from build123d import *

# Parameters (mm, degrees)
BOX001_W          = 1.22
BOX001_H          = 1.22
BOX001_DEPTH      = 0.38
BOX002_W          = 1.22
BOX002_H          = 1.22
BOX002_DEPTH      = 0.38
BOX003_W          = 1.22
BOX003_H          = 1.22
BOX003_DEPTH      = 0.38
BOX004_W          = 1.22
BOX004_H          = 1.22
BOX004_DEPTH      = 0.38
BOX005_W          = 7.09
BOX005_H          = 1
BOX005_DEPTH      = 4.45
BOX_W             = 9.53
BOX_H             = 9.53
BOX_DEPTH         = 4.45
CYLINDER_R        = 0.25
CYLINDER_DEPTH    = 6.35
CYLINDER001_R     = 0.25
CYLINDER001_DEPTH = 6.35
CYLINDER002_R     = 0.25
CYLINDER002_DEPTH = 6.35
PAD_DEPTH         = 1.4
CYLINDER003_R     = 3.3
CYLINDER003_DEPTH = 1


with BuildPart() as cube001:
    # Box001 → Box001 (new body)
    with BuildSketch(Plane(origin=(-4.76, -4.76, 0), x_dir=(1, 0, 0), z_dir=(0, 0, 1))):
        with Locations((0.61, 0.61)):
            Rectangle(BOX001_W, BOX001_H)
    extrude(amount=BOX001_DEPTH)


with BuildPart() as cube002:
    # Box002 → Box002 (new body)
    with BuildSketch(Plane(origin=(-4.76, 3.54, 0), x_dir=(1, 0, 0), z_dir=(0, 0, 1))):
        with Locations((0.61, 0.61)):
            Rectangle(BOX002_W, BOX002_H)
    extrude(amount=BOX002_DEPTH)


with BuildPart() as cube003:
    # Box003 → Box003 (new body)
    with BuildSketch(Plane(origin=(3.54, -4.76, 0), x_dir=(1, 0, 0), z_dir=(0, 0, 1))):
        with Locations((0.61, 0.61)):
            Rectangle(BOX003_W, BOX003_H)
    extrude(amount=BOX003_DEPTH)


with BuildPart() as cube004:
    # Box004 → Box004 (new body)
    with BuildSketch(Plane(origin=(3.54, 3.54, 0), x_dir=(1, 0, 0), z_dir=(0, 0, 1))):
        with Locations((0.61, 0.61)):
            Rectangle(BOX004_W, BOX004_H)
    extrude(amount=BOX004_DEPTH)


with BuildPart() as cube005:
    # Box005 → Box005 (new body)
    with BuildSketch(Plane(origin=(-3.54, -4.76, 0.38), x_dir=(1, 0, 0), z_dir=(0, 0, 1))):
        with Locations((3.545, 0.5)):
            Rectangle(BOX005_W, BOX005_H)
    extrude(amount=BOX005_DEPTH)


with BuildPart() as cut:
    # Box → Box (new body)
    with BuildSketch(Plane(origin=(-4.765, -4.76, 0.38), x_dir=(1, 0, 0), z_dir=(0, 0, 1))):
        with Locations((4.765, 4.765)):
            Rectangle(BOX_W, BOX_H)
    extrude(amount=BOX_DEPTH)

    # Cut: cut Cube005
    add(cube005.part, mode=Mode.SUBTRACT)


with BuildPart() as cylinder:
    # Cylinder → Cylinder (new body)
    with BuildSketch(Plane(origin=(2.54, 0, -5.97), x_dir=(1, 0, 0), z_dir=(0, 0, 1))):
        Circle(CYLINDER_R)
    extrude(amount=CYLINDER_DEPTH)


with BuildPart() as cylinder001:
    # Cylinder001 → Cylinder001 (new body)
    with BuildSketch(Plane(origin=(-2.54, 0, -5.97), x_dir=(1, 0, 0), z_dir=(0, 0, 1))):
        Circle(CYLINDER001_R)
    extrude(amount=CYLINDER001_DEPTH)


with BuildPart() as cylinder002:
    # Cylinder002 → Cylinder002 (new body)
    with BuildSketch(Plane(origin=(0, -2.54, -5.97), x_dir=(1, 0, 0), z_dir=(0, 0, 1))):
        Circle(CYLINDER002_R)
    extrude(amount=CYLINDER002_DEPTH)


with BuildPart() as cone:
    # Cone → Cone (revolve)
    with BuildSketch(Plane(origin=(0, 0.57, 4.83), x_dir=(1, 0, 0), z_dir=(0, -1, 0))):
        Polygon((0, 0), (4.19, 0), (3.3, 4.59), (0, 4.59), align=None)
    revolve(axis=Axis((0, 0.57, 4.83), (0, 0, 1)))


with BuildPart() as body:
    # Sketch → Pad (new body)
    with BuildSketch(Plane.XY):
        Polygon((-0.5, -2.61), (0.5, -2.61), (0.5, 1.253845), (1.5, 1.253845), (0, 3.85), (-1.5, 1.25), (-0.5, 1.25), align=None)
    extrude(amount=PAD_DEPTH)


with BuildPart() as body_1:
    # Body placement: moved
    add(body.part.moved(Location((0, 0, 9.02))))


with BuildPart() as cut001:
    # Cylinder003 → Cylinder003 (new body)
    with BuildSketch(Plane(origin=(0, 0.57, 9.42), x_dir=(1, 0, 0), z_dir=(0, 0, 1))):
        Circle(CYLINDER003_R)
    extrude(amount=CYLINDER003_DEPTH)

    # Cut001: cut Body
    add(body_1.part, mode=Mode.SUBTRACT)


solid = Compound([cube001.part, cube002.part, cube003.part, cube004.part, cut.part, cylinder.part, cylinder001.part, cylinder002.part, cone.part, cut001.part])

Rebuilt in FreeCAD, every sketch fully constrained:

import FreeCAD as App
import Part
import Sketcher

V = App.Vector


def add_polygon(sketch, points):
    """Adds a closed chain of lines whose ends are joined by coincident constraints."""
    first, n = sketch.GeometryCount, len(points)
    for a, b in zip(points, points[1:] + points[:1]):
        sketch.addGeometry(Part.LineSegment(App.Vector(*a, 0), App.Vector(*b, 0)), False)
    for i in range(n):
        sketch.addConstraint(Sketcher.Constraint("Coincident", first + i, 2, first + (i + 1) % n, 1))

doc = App.newDocument("Part")
body = doc.addObject("PartDesign::Body", "Body")

sketch1 = doc.addObject("Sketcher::SketchObject", "Sketch")
body.addObject(sketch1)
sketch1.AttachmentSupport = (doc.XY_Plane, [""])
sketch1.MapMode = "FlatFace"
add_polygon(sketch1, [(-4.8, -3.5), (-4.8, -4.8), (-3.5, -4.8), (-3.5, -3.5)])
sketch1.addConstraint([
    Sketcher.Constraint("Vertical", 0),
    Sketcher.Constraint("Horizontal", 1),
    Sketcher.Constraint("Vertical", 2),
    Sketcher.Constraint("Horizontal", 3),
    Sketcher.Constraint("Equal", 3, 0),
    Sketcher.Constraint("DistanceX", 1, 1, 1, 2, 1.22),
    Sketcher.Constraint("DistanceX", 0, 2, -1, 1, 4.76),
    Sketcher.Constraint("DistanceY", 0, 2, -1, 1, 4.76),
])
pad1 = doc.addObject("PartDesign::Pad", "Pad")
body.addObject(pad1)
pad1.Profile = sketch1
pad1.Length = 0.38
body2 = doc.addObject("PartDesign::Body", "Body001")

sketch2 = doc.addObject("Sketcher::SketchObject", "Sketch001")
body2.addObject(sketch2)
sketch2.AttachmentSupport = (doc.getObject("XY_Plane001"), [""])
sketch2.MapMode = "FlatFace"
add_polygon(sketch2, [(-4.8, 4.8), (-4.8, 3.5), (-3.5, 3.5), (-3.5, 4.8)])
sketch2.addConstraint([
    Sketcher.Constraint("Vertical", 0),
    Sketcher.Constraint("Horizontal", 1),
    Sketcher.Constraint("Vertical", 2),
    Sketcher.Constraint("Horizontal", 3),
    Sketcher.Constraint("Equal", 3, 0),
    Sketcher.Constraint("DistanceX", 1, 1, 1, 2, 1.22),
    Sketcher.Constraint("DistanceX", 0, 2, -1, 1, 4.76),
    Sketcher.Constraint("DistanceY", -1, 1, 0, 2, 3.54),
])
pad2 = doc.addObject("PartDesign::Pad", "Pad001")
body2.addObject(pad2)
pad2.Profile = sketch2
pad2.Length = 0.38
body3 = doc.addObject("PartDesign::Body", "Body002")

sketch3 = doc.addObject("Sketcher::SketchObject", "Sketch002")
body3.addObject(sketch3)
sketch3.AttachmentSupport = (doc.getObject("XY_Plane002"), [""])
sketch3.MapMode = "FlatFace"
add_polygon(sketch3, [(3.5, -3.5), (3.5, -4.8), (4.8, -4.8), (4.8, -3.5)])
sketch3.addConstraint([
    Sketcher.Constraint("Vertical", 0),
    Sketcher.Constraint("Horizontal", 1),
    Sketcher.Constraint("Vertical", 2),
    Sketcher.Constraint("Horizontal", 3),
    Sketcher.Constraint("Equal", 3, 0),
    Sketcher.Constraint("DistanceX", 1, 1, 1, 2, 1.22),
    Sketcher.Constraint("DistanceX", -1, 1, 0, 2, 3.54),
    Sketcher.Constraint("DistanceY", 0, 2, -1, 1, 4.76),
])
pad3 = doc.addObject("PartDesign::Pad", "Pad002")
body3.addObject(pad3)
pad3.Profile = sketch3
pad3.Length = 0.38
body4 = doc.addObject("PartDesign::Body", "Body003")

sketch4 = doc.addObject("Sketcher::SketchObject", "Sketch003")
body4.addObject(sketch4)
sketch4.AttachmentSupport = (doc.getObject("XY_Plane003"), [""])
sketch4.MapMode = "FlatFace"
add_polygon(sketch4, [(3.5, 4.8), (3.5, 3.5), (4.8, 3.5), (4.8, 4.8)])
sketch4.addConstraint([
    Sketcher.Constraint("Vertical", 0),
    Sketcher.Constraint("Horizontal", 1),
    Sketcher.Constraint("Vertical", 2),
    Sketcher.Constraint("Horizontal", 3),
    Sketcher.Constraint("Equal", 3, 0),
    Sketcher.Constraint("DistanceX", 1, 1, 1, 2, 1.22),
    Sketcher.Constraint("DistanceX", -1, 1, 0, 2, 3.54),
    Sketcher.Constraint("DistanceY", -1, 1, 0, 2, 3.54),
])
pad4 = doc.addObject("PartDesign::Pad", "Pad003")
body4.addObject(pad4)
pad4.Profile = sketch4
pad4.Length = 0.38
body5 = doc.addObject("PartDesign::Body", "Body004")

sketch5 = doc.addObject("Sketcher::SketchObject", "Sketch004")
body5.addObject(sketch5)
sketch5.AttachmentSupport = (doc.getObject("XY_Plane004"), [""])
sketch5.MapMode = "FlatFace"
sketch5.AttachmentOffset = App.Placement(V(0, 0, 0.38), App.Rotation())
add_polygon(sketch5, [(-3.5, -3.8), (-3.5, -4.8), (3.5, -4.8), (3.5, -3.8)])
sketch5.addConstraint([
    Sketcher.Constraint("Vertical", 0),
    Sketcher.Constraint("Horizontal", 1),
    Sketcher.Constraint("Vertical", 2),
    Sketcher.Constraint("Horizontal", 3),
    Sketcher.Constraint("DistanceY", 0, 2, 0, 1, 1.0),
    Sketcher.Constraint("DistanceX", 1, 1, 1, 2, 7.09),
    Sketcher.Constraint("DistanceX", 0, 2, -1, 1, 3.54),
    Sketcher.Constraint("DistanceY", 0, 2, -1, 1, 4.76),
])
pad5 = doc.addObject("PartDesign::Pad", "Pad004")
body5.addObject(pad5)
pad5.Profile = sketch5
pad5.Length = 4.45
body6 = doc.addObject("PartDesign::Body", "Body005")

sketch6 = doc.addObject("Sketcher::SketchObject", "Sketch005")
body6.addObject(sketch6)
sketch6.AttachmentSupport = (doc.getObject("XY_Plane005"), [""])
sketch6.MapMode = "FlatFace"
sketch6.AttachmentOffset = App.Placement(V(0, 0, 0.38), App.Rotation())
add_polygon(sketch6, [(-5, 5), (-5, -5), (5, -5), (5, 5)])
sketch6.addConstraint([
    Sketcher.Constraint("Vertical", 0),
    Sketcher.Constraint("Horizontal", 1),
    Sketcher.Constraint("Vertical", 2),
    Sketcher.Constraint("Horizontal", 3),
    Sketcher.Constraint("Equal", 3, 0),
    Sketcher.Constraint("DistanceX", 1, 1, 1, 2, 9.53),
    Sketcher.Constraint("DistanceY", 0, 2, -1, 1, 4.76),
    Sketcher.Constraint("DistanceX", 0, 2, -1, 1, 4.765),
])
pad6 = doc.addObject("PartDesign::Pad", "Pad005")
body6.addObject(pad6)
pad6.Profile = sketch6
pad6.Length = 4.45
doc.recompute()

boolean = doc.addObject("PartDesign::Boolean", "Boolean")
body6.addObject(boolean)
boolean.Type = "Cut"
boolean.addObjects([body5])
body7 = doc.addObject("PartDesign::Body", "Body006")

sketch7 = doc.addObject("Sketcher::SketchObject", "Sketch006")
body7.addObject(sketch7)
sketch7.AttachmentSupport = (doc.getObject("XY_Plane006"), [""])
sketch7.MapMode = "FlatFace"
sketch7.AttachmentOffset = App.Placement(V(0, 0, -5.97), App.Rotation())
sketch7.addGeometry(Part.Circle(V(2.54, 0, 0), V(0, 0, 1), 0.25), False)
sketch7.addConstraint([
    Sketcher.Constraint("PointOnObject", 0, 3, -1),
    Sketcher.Constraint("Diameter", 0, 0.5),
    Sketcher.Constraint("DistanceX", -1, 1, 0, 3, 2.54),
])
pad7 = doc.addObject("PartDesign::Pad", "Pad006")
body7.addObject(pad7)
pad7.Profile = sketch7
pad7.Length = 6.35
body8 = doc.addObject("PartDesign::Body", "Body007")

sketch8 = doc.addObject("Sketcher::SketchObject", "Sketch007")
body8.addObject(sketch8)
sketch8.AttachmentSupport = (doc.getObject("XY_Plane007"), [""])
sketch8.MapMode = "FlatFace"
sketch8.AttachmentOffset = App.Placement(V(0, 0, -5.97), App.Rotation())
sketch8.addGeometry(Part.Circle(V(-2.54, 0, 0), V(0, 0, 1), 0.25), False)
sketch8.addConstraint([
    Sketcher.Constraint("PointOnObject", 0, 3, -1),
    Sketcher.Constraint("Diameter", 0, 0.5),
    Sketcher.Constraint("DistanceX", 0, 3, -1, 1, 2.54),
])
pad8 = doc.addObject("PartDesign::Pad", "Pad007")
body8.addObject(pad8)
pad8.Profile = sketch8
pad8.Length = 6.35
body9 = doc.addObject("PartDesign::Body", "Body008")

sketch9 = doc.addObject("Sketcher::SketchObject", "Sketch008")
body9.addObject(sketch9)
sketch9.AttachmentSupport = (doc.getObject("XY_Plane008"), [""])
sketch9.MapMode = "FlatFace"
sketch9.AttachmentOffset = App.Placement(V(0, 0, -5.97), App.Rotation())
sketch9.addGeometry(Part.Circle(V(0, -2.54, 0), V(0, 0, 1), 0.25), False)
sketch9.addConstraint([
    Sketcher.Constraint("PointOnObject", 0, 3, -2),
    Sketcher.Constraint("Diameter", 0, 0.5),
    Sketcher.Constraint("DistanceY", 0, 3, -1, 1, 2.54),
])
pad9 = doc.addObject("PartDesign::Pad", "Pad008")
body9.addObject(pad9)
pad9.Profile = sketch9
pad9.Length = 6.35
body10 = doc.addObject("PartDesign::Body", "Body009")

sketch10 = doc.addObject("Sketcher::SketchObject", "Sketch009")
body10.addObject(sketch10)
sketch10.AttachmentSupport = (doc.getObject("XZ_Plane009"), [""])
sketch10.MapMode = "FlatFace"
sketch10.AttachmentOffset = App.Placement(V(0, 0, -0.57), App.Rotation())
add_polygon(sketch10, [(0, 4.8), (4.2, 4.8), (3.3, 9.4), (0, 9.4)])
sketch10.addConstraint([
    Sketcher.Constraint("Horizontal", 0),
    Sketcher.Constraint("Horizontal", 2),
    Sketcher.Constraint("Vertical", 3),
    Sketcher.Constraint("PointOnObject", 2, 2, -2),
    Sketcher.Constraint("DistanceX", 2, 2, 2, 1, 3.3),
    Sketcher.Constraint("DistanceX", 0, 1, 0, 2, 4.19),
    Sketcher.Constraint("DistanceY", 3, 2, 3, 1, 4.59),
    Sketcher.Constraint("DistanceY", -1, 1, 0, 2, 4.83),
])
revolution = doc.addObject("PartDesign::Revolution", "Revolution")
body10.addObject(revolution)
revolution.Profile = sketch10
revolution.ReferenceAxis = (sketch10, ["V_Axis"])
revolution.Angle = 360
body11 = doc.addObject("PartDesign::Body", "Body010")

sketch11 = doc.addObject("Sketcher::SketchObject", "Sketch010")
body11.addObject(sketch11)
sketch11.AttachmentSupport = (doc.getObject("XY_Plane010"), [""])
sketch11.MapMode = "FlatFace"
add_polygon(sketch11, [(-0.5, -2.6), (0.5, -2.6), (0.5, 1.3), (1.5, 1.3), (0, 3.9), (-1.5, 1.2), (-0.5, 1.2)])
sketch11.addConstraint([
    Sketcher.Constraint("Horizontal", 0),
    Sketcher.Constraint("Vertical", 1),
    Sketcher.Constraint("Horizontal", 2),
    Sketcher.Constraint("Horizontal", 5),
    Sketcher.Constraint("Vertical", 6),
    Sketcher.Constraint("PointOnObject", 3, 2, -2),
    Sketcher.Constraint("Equal", 0, 2),
    Sketcher.Constraint("Equal", 2, 5),
    Sketcher.Constraint("DistanceX", 0, 1, 0, 2, 1.0),
    Sketcher.Constraint("DistanceY", 6, 2, 6, 1, 3.86),
    Sketcher.Constraint("DistanceX", -1, 1, 0, 2, 0.5),
    Sketcher.Constraint("DistanceY", 4, 2, 3, 2, 2.6),
    Sketcher.Constraint("DistanceY", 0, 2, -1, 1, 2.61),
    Sketcher.Constraint("DistanceY", 1, 1, 1, 2, 3.863845),
])
pad10 = doc.addObject("PartDesign::Pad", "Pad009")
body11.addObject(pad10)
pad10.Profile = sketch11
pad10.Length = 1.4
body12 = doc.addObject("PartDesign::Body", "Body011")
doc.recompute()

body11.Placement = App.Placement(V(0, 0, 9.02), App.Rotation(V(0, 0, 1), 0))
boolean2 = doc.addObject("PartDesign::Boolean", "Boolean001")
body12.addObject(boolean2)
boolean2.Type = "Fuse"
boolean2.addObjects([body11])
body13 = doc.addObject("PartDesign::Body", "Body012")

sketch12 = doc.addObject("Sketcher::SketchObject", "Sketch011")
body13.addObject(sketch12)
sketch12.AttachmentSupport = (doc.getObject("XY_Plane012"), [""])
sketch12.MapMode = "FlatFace"
sketch12.AttachmentOffset = App.Placement(V(0, 0, 9.42), App.Rotation())
sketch12.addGeometry(Part.Circle(V(0, 0.6, 0), V(0, 0, 1), 3.3), False)
sketch12.addConstraint([
    Sketcher.Constraint("PointOnObject", 0, 3, -2),
    Sketcher.Constraint("Diameter", 0, 6.6),
    Sketcher.Constraint("DistanceY", -1, 1, 0, 3, 0.57),
])
pad11 = doc.addObject("PartDesign::Pad", "Pad010")
body13.addObject(pad11)
pad11.Profile = sketch12
pad11.Length = 1
doc.recompute()

boolean3 = doc.addObject("PartDesign::Boolean", "Boolean002")
body13.addObject(boolean3)
boolean3.Type = "Cut"
boolean3.addObjects([body12])

doc.recompute()
